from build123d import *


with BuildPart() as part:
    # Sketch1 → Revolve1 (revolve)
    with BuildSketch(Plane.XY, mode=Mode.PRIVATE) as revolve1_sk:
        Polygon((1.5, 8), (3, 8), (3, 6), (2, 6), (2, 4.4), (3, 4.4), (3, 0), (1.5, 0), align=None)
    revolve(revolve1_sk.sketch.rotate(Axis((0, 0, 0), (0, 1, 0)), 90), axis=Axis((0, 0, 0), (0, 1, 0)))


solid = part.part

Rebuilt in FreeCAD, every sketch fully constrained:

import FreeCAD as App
import Part
import Sketcher
Q = App.Units.Quantity

doc = App.newDocument("Part")
body = doc.addObject("PartDesign::Body", "Body")

# Sketch on XY plane
sketch1 = body.newObject("Sketcher::SketchObject", "Sketch")
sketch1.AttachmentSupport = (doc.getObject("XY_Plane"), [""])
sketch1.MapMode = "FlatFace"
sketch1.addGeometry([
    Part.LineSegment(App.Vector(3, 8, 0), App.Vector(1.5, 8, 0)),  # 0
    Part.LineSegment(App.Vector(1.5, 8, 0), App.Vector(1.5, 0, 0)),  # 1
    Part.LineSegment(App.Vector(1.5, 0, 0), App.Vector(3, 0, 0)),  # 2
    Part.LineSegment(App.Vector(3, 0, 0), App.Vector(3, 4.4, 0)),  # 3
    Part.LineSegment(App.Vector(3, 4.4, 0), App.Vector(2, 4.4, 0)),  # 4
    Part.LineSegment(App.Vector(2, 4.4, 0), App.Vector(2, 6, 0)),  # 5
    Part.LineSegment(App.Vector(2, 6, 0), App.Vector(3, 6, 0)),  # 6
    Part.LineSegment(App.Vector(3, 6, 0), App.Vector(3, 8, 0)),  # 7
], False)
sketch1.addConstraint([
    Sketcher.Constraint("Coincident", 0, 2, 1, 1),
    Sketcher.Constraint("Coincident", 1, 2, 2, 1),
    Sketcher.Constraint("Coincident", 2, 2, 3, 1),
    Sketcher.Constraint("Coincident", 3, 2, 4, 1),
    Sketcher.Constraint("Coincident", 4, 2, 5, 1),
    Sketcher.Constraint("Coincident", 5, 2, 6, 1),
    Sketcher.Constraint("Coincident", 6, 2, 7, 1),
    Sketcher.Constraint("Coincident", 7, 2, 0, 1),
    Sketcher.Constraint("Horizontal", 0),
    Sketcher.Constraint("Vertical", 1),
    Sketcher.Constraint("Horizontal", 2),
    Sketcher.Constraint("Vertical", 3),
    Sketcher.Constraint("Horizontal", 4),
    Sketcher.Constraint("Vertical", 5),
    Sketcher.Constraint("Horizontal", 6),
    Sketcher.Constraint("Vertical", 7),
    Sketcher.Constraint("PointOnObject", 1, 2, -1),
    Sketcher.Constraint("Vertical", 3, 2, 6, 2),
    Sketcher.Constraint("DistanceX", 4, 2, 4, 1, Q("1 mm")),
    Sketcher.Constraint("DistanceY", 1, 2, 1, 1, Q("8 mm")),
    Sketcher.Constraint("DistanceY", 7, 1, 7, 2, Q("2 mm")),
    Sketcher.Constraint("DistanceX", 0, 2, 0, 1, Q("1.5 mm")),
    Sketcher.Constraint("DistanceY", 3, 1, 3, 2, Q("4.4 mm")),
    Sketcher.Constraint("DistanceX", -1, 1, 2, 2, Q("3 mm")),
])
revolution = body.newObject("PartDesign::Revolution", "Revolution")
revolution.Profile = sketch1
revolution.ReferenceAxis = (sketch1, ["V_Axis"])
revolution.Angle = 360

doc.recompute()
